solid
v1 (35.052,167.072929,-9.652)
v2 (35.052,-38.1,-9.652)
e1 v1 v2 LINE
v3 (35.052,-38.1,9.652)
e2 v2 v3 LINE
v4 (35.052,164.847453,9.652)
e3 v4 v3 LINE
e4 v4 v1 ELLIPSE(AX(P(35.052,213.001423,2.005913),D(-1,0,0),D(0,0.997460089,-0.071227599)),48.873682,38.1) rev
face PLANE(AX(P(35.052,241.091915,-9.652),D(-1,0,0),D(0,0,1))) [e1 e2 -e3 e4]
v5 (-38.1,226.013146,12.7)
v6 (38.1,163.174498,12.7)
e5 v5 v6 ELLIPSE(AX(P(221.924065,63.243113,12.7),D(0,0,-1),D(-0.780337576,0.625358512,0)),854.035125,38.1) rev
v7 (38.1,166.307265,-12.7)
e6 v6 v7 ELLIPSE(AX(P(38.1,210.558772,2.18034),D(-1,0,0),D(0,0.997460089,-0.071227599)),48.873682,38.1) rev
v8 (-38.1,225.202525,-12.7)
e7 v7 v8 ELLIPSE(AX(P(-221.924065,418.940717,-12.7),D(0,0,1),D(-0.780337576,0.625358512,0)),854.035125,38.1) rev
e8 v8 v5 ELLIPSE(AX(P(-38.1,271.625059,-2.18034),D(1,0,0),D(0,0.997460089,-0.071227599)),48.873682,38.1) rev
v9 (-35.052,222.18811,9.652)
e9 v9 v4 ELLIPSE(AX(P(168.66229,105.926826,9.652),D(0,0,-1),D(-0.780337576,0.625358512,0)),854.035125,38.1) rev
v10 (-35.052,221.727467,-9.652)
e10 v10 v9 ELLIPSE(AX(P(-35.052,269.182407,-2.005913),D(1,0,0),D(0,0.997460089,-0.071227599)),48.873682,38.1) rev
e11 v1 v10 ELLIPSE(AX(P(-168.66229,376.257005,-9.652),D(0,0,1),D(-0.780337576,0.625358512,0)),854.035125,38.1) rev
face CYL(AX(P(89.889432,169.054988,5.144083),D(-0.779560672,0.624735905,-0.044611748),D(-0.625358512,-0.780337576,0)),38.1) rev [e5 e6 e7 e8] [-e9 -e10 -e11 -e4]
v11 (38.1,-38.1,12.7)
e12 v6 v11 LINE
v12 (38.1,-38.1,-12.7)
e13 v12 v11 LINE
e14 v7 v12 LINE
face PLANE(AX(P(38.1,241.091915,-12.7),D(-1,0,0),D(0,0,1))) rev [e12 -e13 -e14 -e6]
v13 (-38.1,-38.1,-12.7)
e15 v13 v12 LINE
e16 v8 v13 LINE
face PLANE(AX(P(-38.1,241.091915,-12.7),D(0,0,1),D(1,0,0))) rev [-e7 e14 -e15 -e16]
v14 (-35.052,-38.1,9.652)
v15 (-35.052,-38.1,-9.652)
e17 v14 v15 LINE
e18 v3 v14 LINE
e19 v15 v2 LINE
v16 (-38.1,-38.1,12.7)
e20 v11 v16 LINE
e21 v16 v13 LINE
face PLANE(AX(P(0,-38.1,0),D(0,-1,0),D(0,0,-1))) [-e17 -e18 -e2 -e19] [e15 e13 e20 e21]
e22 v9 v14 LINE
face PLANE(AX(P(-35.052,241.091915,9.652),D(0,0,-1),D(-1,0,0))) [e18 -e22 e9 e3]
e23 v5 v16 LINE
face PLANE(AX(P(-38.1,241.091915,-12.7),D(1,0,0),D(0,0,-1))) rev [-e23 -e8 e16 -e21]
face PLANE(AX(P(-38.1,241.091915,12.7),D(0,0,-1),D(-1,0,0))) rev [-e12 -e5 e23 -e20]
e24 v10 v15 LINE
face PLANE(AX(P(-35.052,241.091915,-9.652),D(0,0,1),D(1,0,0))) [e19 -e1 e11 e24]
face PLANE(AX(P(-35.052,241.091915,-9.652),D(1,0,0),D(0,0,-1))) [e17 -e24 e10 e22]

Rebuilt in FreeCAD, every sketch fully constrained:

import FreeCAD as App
import Part
import Sketcher
Q = App.Units.Quantity


def add_polygon(sketch, points):
    """Adds a closed chain of lines whose ends are joined by coincident constraints."""
    first, n = sketch.GeometryCount, len(points)
    for a, b in zip(points, points[1:] + points[:1]):
        sketch.addGeometry(Part.LineSegment(App.Vector(*a, 0), App.Vector(*b, 0)), False)
    for i in range(n):
        sketch.addConstraint(Sketcher.Constraint("Coincident", first + i, 2, first + (i + 1) % n, 1))

doc = App.newDocument("Part")
body = doc.addObject("PartDesign::Body", "Body")

sketch1 = doc.addObject("Sketcher::SketchObject", "Sketch")
body.addObject(sketch1)
sketch1.AttachmentSupport = (doc.XZ_Plane, [""])
sketch1.MapMode = "FlatFace"
add_polygon(sketch1, [(-38, -13), (-38, 13), (38, 13), (38, -13)])
add_polygon(sketch1, [(35, 10), (-35, 10), (-35, -10), (35, -10)])
sketch1.addConstraint([
    Sketcher.Constraint("Vertical", 0),
    Sketcher.Constraint("Horizontal", 1),
    Sketcher.Constraint("Vertical", 2),
    Sketcher.Constraint("Horizontal", 3),
    Sketcher.Constraint("Horizontal", 4),
    Sketcher.Constraint("Vertical", 5),
    Sketcher.Constraint("Horizontal", 6),
    Sketcher.Constraint("Vertical", 7),
    Sketcher.Constraint("Symmetric", 0, 2, 2, 2, -1, 1),
    Sketcher.Constraint("Symmetric", 4, 2, 6, 2, -1, 1),
    Sketcher.Constraint("DistanceX", 1, 1, 1, 2, Q("3 in")),
    Sketcher.Constraint("DistanceY", 0, 1, 0, 2, Q("1 in")),
    Sketcher.Constraint("DistanceX", 4, 2, 4, 1, Q("2.76 in")),
    Sketcher.Constraint("DistanceY", 5, 2, 5, 1, Q("0.76 in")),
])
pad1 = doc.addObject("PartDesign::Pad", "Pad")
body.addObject(pad1)
pad1.Profile = sketch1
pad1.Length = 241.091915
pad1.Reversed = True

sketch2 = doc.addObject("Sketcher::SketchObject", "Sketch001")
body.addObject(sketch2)
sketch2.AttachmentSupport = (doc.XZ_Plane, [""])
sketch2.MapMode = "FlatFace"
sketch2.AttachmentOffset = App.Placement(App.Vector(0, 0, -241.091915), App.Rotation())
add_polygon(sketch2, [(-38, -13), (-38, 13), (38, 13), (38, -13)])
add_polygon(sketch2, [(35, 10), (-35, 10), (-35, -10), (35, -10)])
sketch2.addConstraint([
    Sketcher.Constraint("Vertical", 0),
    Sketcher.Constraint("Horizontal", 1),
    Sketcher.Constraint("Vertical", 2),
    Sketcher.Constraint("Horizontal", 3),
    Sketcher.Constraint("Horizontal", 4),
    Sketcher.Constraint("Vertical", 5),
    Sketcher.Constraint("Horizontal", 6),
    Sketcher.Constraint("Vertical", 7),
    Sketcher.Constraint("Symmetric", 0, 2, 2, 2, -1, 1),
    Sketcher.Constraint("Symmetric", 4, 2, 6, 2, -1, 1),
    Sketcher.Constraint("DistanceX", 1, 1, 1, 2, Q("3 in")),
    Sketcher.Constraint("DistanceY", 0, 1, 0, 2, Q("1 in")),
    Sketcher.Constraint("DistanceX", 4, 2, 4, 1, Q("2.76 in")),
    Sketcher.Constraint("DistanceY", 5, 2, 5, 1, Q("0.76 in")),
])
pad2 = doc.addObject("PartDesign::Pad", "Pad001")
body.addObject(pad2)
pad2.Profile = sketch2
pad2.Length = Q("0.12 in")
pad2.Reversed = True

sketch3 = doc.addObject("Sketcher::SketchObject", "Sketch002")
body.addObject(sketch3)
sketch3.AttachmentSupport = (doc.XZ_Plane, [""])
sketch3.MapMode = "FlatFace"
add_polygon(sketch3, [(-38, 13), (-38, -13), (38, -13), (38, 13)])
add_polygon(sketch3, [(35, -10), (-35, -10), (-35, 10), (35, 10)])
sketch3.addConstraint([
    Sketcher.Constraint("Vertical", 0),
    Sketcher.Constraint("Horizontal", 1),
    Sketcher.Constraint("Vertical", 2),
    Sketcher.Constraint("Horizontal", 3),
    Sketcher.Constraint("Horizontal", 4),
    Sketcher.Constraint("Vertical", 5),
    Sketcher.Constraint("Horizontal", 6),
    Sketcher.Constraint("Vertical", 7),
    Sketcher.Constraint("Symmetric", 0, 2, 2, 2, -1, 1),
    Sketcher.Constraint("Symmetric", 4, 2, 6, 2, -1, 1),
    Sketcher.Constraint("DistanceX", 1, 1, 1, 2, Q("3 in")),
    Sketcher.Constraint("DistanceY", 0, 2, 0, 1, Q("1 in")),
    Sketcher.Constraint("DistanceX", 4, 2, 4, 1, Q("2.76 in")),
    Sketcher.Constraint("DistanceY", 5, 1, 5, 2, Q("0.76 in")),
])
pad3 = doc.addObject("PartDesign::Pad", "Pad002")
body.addObject(pad3)
pad3.Profile = sketch3
pad3.Length = Q("1.5 in")

sketch4 = doc.addObject("Sketcher::SketchObject", "Sketch003")
body.addObject(sketch4)
sketch4.Placement = App.Placement(App.Vector(-25.080046, 261.190935, -1.43525), App.Rotation(App.Vector(0.03097261, -0.032688156, -0.998985576), App.Vector(0.625560434, 0.780151609, -0.006132699), App.Vector(0.779560672, -0.624735905, 0.044611748), "ZXY"))
sketch4.addGeometry(Part.Circle(App.Vector(0, 0, 0), App.Vector(0, 0, 1), 38), False)
sketch4.addConstraint([
    Sketcher.Constraint("Coincident", 0, 3, -1, 1),
    Sketcher.Constraint("Diameter", 0, Q("3 in")),
])
pocket1 = doc.addObject("PartDesign::Pocket", "Pocket")
body.addObject(pocket1)
pocket1.Profile = sketch4
pocket1.Length = 111.6566
pocket1.Reversed = True

doc.recompute()
